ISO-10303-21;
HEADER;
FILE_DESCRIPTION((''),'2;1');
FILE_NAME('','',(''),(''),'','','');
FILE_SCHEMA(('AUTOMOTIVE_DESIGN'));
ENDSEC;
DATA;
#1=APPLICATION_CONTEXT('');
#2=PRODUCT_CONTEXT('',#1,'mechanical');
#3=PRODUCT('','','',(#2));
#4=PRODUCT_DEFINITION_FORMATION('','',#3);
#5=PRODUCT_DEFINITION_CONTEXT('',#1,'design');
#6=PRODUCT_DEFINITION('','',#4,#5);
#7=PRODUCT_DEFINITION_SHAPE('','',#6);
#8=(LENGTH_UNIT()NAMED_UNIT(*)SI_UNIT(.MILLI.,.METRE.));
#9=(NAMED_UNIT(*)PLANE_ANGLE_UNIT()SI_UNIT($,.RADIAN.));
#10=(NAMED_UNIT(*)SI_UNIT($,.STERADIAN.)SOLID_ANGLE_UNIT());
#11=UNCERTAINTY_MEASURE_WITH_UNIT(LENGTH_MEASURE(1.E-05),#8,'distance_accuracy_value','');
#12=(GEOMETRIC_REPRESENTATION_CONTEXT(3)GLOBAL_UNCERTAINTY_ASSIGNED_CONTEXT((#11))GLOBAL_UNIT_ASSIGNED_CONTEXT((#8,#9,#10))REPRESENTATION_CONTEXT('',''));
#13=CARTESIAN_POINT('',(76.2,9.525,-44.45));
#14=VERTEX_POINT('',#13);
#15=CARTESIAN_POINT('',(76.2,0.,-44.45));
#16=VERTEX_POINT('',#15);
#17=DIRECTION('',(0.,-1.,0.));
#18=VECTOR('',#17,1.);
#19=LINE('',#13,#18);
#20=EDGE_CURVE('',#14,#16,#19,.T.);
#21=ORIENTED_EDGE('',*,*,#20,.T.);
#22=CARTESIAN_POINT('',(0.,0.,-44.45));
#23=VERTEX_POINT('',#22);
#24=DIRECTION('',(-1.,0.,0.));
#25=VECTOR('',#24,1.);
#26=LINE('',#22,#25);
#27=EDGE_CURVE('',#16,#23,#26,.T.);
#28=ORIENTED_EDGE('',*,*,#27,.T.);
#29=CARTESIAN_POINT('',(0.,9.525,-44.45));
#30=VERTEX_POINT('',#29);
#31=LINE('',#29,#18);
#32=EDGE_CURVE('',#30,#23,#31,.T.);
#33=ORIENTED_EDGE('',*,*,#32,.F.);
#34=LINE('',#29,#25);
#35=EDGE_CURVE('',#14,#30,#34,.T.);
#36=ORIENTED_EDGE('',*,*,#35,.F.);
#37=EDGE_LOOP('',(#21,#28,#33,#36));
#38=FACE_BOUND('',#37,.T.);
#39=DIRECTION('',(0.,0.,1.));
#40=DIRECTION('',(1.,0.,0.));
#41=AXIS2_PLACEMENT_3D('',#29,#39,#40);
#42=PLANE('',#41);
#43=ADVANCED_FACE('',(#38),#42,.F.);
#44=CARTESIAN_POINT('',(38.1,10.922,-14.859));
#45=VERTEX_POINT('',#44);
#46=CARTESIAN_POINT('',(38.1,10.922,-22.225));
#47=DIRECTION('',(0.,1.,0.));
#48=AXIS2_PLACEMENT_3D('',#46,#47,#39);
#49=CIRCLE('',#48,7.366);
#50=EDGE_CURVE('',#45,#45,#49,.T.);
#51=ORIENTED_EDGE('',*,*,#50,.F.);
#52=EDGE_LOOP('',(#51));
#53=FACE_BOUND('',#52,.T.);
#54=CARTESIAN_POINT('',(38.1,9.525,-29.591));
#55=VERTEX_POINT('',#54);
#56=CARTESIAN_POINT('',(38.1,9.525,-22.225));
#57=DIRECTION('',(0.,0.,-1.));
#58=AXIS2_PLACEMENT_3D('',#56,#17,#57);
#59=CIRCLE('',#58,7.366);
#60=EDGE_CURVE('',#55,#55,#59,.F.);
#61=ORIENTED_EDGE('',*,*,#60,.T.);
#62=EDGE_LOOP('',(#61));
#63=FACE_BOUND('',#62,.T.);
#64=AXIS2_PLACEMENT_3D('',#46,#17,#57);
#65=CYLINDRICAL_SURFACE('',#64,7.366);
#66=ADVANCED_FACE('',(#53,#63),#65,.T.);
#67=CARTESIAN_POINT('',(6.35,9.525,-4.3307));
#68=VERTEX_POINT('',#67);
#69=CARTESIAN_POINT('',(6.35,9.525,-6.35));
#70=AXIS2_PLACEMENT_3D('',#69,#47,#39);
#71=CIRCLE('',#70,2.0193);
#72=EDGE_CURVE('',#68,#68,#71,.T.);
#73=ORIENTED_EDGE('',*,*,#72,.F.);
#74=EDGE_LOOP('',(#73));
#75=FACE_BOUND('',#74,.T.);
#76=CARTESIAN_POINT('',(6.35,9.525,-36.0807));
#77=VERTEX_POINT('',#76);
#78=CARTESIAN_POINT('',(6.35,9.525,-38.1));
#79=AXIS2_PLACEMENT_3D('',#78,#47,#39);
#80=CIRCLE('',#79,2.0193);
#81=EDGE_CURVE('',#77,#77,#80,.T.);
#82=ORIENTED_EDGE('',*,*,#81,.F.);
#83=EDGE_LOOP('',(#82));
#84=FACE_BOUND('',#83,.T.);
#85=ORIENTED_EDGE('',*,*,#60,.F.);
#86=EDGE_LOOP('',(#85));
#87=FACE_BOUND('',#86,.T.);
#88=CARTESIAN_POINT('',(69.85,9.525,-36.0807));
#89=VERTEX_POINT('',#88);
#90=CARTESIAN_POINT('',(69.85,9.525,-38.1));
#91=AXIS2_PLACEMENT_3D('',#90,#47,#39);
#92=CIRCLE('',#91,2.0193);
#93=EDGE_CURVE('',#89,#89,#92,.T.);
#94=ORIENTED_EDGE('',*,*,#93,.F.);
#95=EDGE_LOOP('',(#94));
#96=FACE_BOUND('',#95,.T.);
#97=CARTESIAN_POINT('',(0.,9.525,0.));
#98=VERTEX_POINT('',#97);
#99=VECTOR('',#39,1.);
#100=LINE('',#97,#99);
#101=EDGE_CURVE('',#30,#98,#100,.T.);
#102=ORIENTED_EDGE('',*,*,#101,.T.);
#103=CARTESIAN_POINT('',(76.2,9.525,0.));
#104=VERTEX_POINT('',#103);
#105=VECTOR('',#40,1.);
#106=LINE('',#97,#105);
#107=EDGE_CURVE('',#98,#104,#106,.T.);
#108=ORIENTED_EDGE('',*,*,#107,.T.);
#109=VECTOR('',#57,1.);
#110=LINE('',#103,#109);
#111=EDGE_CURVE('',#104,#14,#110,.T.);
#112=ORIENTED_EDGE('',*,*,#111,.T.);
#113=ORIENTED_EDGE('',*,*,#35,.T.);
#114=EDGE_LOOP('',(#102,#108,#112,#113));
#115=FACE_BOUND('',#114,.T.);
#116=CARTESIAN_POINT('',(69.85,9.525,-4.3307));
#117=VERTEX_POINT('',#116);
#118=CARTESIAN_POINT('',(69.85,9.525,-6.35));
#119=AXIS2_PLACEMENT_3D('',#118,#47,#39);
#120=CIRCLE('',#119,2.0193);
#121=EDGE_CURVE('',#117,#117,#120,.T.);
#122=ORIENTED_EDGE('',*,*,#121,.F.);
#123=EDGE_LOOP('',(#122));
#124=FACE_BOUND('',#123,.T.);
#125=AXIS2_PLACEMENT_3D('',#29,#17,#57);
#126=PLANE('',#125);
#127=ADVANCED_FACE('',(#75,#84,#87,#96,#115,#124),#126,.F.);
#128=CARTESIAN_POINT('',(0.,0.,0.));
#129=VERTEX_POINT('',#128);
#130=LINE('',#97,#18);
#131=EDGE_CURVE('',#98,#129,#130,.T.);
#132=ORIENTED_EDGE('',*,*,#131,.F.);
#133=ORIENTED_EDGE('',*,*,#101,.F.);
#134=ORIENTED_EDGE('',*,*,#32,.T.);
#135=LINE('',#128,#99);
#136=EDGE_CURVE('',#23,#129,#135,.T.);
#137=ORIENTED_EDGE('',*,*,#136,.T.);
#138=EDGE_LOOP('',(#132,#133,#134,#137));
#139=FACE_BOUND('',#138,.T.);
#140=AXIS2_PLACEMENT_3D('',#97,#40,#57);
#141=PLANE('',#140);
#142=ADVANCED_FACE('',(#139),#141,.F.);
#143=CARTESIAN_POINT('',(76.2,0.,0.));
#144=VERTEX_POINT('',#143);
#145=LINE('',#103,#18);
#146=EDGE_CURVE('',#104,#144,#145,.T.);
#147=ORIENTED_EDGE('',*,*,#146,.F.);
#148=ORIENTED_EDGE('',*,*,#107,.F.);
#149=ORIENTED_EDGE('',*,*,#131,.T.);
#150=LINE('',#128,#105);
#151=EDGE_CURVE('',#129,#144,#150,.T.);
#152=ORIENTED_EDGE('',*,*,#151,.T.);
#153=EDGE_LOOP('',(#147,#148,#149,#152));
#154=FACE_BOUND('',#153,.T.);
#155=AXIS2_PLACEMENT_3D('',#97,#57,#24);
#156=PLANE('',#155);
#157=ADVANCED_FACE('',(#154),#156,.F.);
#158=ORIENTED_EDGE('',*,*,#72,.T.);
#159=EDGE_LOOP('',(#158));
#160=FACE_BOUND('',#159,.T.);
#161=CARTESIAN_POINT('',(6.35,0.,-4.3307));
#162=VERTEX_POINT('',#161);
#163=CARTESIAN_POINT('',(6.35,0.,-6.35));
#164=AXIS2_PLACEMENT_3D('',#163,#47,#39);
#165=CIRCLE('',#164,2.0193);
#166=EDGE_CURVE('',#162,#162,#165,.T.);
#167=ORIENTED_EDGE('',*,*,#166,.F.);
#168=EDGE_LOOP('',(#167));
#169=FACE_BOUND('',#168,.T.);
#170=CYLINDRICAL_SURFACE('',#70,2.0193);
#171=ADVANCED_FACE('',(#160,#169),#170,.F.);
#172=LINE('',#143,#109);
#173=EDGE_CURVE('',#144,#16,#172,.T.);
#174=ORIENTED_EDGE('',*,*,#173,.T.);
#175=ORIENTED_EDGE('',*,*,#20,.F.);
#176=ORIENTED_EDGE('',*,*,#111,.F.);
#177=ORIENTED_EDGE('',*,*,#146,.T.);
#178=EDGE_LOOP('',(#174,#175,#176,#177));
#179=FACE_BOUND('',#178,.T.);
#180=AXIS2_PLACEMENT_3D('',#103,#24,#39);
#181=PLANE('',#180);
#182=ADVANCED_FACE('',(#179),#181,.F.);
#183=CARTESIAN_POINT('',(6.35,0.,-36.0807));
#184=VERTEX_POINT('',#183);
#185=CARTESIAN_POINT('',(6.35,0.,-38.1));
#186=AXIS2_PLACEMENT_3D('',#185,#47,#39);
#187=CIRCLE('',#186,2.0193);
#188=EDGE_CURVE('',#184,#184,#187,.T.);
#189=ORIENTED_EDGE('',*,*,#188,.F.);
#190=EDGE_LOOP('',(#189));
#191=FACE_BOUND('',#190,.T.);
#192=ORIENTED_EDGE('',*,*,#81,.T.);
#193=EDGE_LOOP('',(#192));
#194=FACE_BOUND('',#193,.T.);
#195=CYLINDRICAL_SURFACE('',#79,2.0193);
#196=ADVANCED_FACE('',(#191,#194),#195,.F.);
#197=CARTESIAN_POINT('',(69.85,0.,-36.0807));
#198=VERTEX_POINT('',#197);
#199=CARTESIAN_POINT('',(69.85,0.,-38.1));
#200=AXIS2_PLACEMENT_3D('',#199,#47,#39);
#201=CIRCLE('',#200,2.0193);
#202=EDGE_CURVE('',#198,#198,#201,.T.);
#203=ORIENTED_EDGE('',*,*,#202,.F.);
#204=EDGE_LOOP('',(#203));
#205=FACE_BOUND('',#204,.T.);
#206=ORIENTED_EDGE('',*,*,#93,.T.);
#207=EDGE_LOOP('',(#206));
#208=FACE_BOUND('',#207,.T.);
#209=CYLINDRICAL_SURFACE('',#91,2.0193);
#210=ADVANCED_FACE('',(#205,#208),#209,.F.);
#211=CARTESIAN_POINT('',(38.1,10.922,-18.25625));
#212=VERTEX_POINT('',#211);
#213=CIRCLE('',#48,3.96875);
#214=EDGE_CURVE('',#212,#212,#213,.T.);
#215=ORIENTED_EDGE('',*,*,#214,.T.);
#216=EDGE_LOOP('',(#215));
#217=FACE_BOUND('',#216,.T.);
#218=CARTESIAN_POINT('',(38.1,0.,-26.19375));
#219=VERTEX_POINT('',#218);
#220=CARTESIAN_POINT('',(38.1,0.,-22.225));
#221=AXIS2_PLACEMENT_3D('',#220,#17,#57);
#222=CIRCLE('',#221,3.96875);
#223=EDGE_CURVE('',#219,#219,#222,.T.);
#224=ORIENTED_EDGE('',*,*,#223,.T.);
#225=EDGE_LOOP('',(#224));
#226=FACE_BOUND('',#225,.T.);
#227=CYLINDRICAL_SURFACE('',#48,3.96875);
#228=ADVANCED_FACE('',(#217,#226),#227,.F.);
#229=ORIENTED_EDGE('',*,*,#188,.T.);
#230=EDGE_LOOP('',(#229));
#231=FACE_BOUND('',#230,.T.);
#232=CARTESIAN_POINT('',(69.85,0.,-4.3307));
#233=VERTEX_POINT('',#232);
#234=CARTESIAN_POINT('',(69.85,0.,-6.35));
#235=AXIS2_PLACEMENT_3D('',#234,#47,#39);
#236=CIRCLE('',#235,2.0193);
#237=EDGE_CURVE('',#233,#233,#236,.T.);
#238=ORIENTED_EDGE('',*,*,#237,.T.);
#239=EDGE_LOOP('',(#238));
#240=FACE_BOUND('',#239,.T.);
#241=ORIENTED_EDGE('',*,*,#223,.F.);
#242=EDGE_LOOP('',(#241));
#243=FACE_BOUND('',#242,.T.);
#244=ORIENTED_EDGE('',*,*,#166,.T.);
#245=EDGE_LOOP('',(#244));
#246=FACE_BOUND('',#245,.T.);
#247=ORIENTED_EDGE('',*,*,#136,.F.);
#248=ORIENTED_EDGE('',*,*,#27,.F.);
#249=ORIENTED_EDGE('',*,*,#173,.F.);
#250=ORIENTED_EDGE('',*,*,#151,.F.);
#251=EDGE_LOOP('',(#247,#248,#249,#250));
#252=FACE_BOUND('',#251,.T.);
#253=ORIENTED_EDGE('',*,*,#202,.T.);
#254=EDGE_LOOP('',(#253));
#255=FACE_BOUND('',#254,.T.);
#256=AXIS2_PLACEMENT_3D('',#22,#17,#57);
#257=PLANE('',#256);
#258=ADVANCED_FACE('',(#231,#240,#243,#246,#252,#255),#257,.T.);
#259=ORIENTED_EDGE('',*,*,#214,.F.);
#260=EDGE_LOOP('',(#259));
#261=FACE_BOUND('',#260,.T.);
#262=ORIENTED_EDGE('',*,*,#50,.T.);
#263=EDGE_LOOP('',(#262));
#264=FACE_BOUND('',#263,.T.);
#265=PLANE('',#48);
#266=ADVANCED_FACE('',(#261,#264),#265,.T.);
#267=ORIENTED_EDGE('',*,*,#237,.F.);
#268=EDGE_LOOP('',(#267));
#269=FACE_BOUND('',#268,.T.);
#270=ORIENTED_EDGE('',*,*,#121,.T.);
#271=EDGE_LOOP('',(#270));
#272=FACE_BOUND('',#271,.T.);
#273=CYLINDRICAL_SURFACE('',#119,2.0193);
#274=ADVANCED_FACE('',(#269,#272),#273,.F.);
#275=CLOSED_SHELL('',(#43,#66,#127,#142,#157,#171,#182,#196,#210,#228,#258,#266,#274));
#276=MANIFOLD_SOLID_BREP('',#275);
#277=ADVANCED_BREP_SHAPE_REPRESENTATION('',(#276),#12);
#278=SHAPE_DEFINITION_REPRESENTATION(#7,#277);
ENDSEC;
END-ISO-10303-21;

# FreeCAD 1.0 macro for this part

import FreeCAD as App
import Part
import Sketcher
from FreeCAD import Vector
Q = App.Units.Quantity


def add_polygon(sketch, points):
    """Adds a closed chain of lines whose ends are joined by coincident constraints."""
    first, n = sketch.GeometryCount, len(points)
    for a, b in zip(points, points[1:] + points[:1]):
        sketch.addGeometry(Part.LineSegment(App.Vector(*a, 0), App.Vector(*b, 0)), False)
    for i in range(n):
        sketch.addConstraint(Sketcher.Constraint("Coincident", first + i, 2, first + (i + 1) % n, 1))

doc = App.newDocument("Part")
body = doc.addObject("PartDesign::Body", "Body")

sketch1 = doc.addObject("Sketcher::SketchObject", "Sketch")
body.addObject(sketch1)
sketch1.AttachmentSupport = (doc.XZ_Plane, [""])
sketch1.MapMode = "FlatFace"
add_polygon(sketch1, [(0, -44), (0, 0), (76, 0), (76, -44)])
sketch1.addConstraint([
    Sketcher.Constraint("Vertical", 0),
    Sketcher.Constraint("Horizontal", 1),
    Sketcher.Constraint("Vertical", 2),
    Sketcher.Constraint("Horizontal", 3),
    Sketcher.Constraint("Coincident", 0, 2, -1, 1),
    Sketcher.Constraint("DistanceX", 1, 1, 1, 2, Q("3 in")),
    Sketcher.Constraint("DistanceY", 0, 1, 0, 2, Q("1.75 in")),
])
pad1 = doc.addObject("PartDesign::Pad", "Pad")
body.addObject(pad1)
pad1.Profile = sketch1
pad1.Length = Q("0.375 in")
pad1.Reversed = True

sketch2 = doc.addObject("Sketcher::SketchObject", "Sketch001")
body.addObject(sketch2)
sketch2.AttachmentSupport = (doc.XZ_Plane, [""])
sketch2.MapMode = "FlatFace"
sketch2.AttachmentOffset = App.Placement(Vector(0, 0, -0.375 * 25.4), App.Rotation())
sketch2.addGeometry([
    Part.Circle(Vector(6.3, -38.1, 0), Vector(0, 0, 1), 2),
    Part.Circle(Vector(69.8, -38.1, 0), Vector(0, 0, 1), 2),
    Part.Circle(Vector(69.8, -6.3, 0), Vector(0, 0, 1), 2),
    Part.Circle(Vector(6.3, -6.3, 0), Vector(0, 0, 1), 2),
], False)
sketch2.addConstraint([
    Sketcher.Constraint("Equal", 0, 1),
    Sketcher.Constraint("Equal", 1, 2),
    Sketcher.Constraint("Equal", 2, 3),
    Sketcher.Constraint("Horizontal", 0, 3, 1, 3),
    Sketcher.Constraint("Horizontal", 2, 3, 3, 3),
    Sketcher.Constraint("Vertical", 1, 3, 2, 3),
    Sketcher.Constraint("Vertical", 0, 3, 3, 3),
    Sketcher.Constraint("Diameter", 0, Q("0.159 in")),
    Sketcher.Constraint("DistanceY", 0, 3, -1, 1, Q("1.5 in")),
    Sketcher.Constraint("DistanceX", 0, 3, 1, 3, Q("2.5 in")),
    Sketcher.Constraint("DistanceX", -1, 1, 0, 3, Q("0.25 in")),
    Sketcher.Constraint("DistanceY", 2, 3, -1, 1, Q("0.25 in")),
])
doc.recompute()
hole = doc.addObject("PartDesign::Hole", "Hole")
body.addObject(hole)
hole.Profile = sketch2
hole.ThreadType = "None"
hole.Diameter = Q("0.159 in")
hole.DepthType = "ThroughAll"
hole.Reversed = True

sketch3 = doc.addObject("Sketcher::SketchObject", "Sketch002")
body.addObject(sketch3)
sketch3.AttachmentSupport = (doc.XZ_Plane, [""])
sketch3.MapMode = "FlatFace"
sketch3.AttachmentOffset = App.Placement(Vector(0, 0, -0.375 * 25.4), App.Rotation())
sketch3.addGeometry(Part.Circle(Vector(38, -22, 0), Vector(0, 0, 1), 7), False)
sketch3.addConstraint([
    Sketcher.Constraint("Diameter", 0, Q("0.58 in")),
    Sketcher.Constraint("DistanceX", -1, 1, 0, 3, Q("1.5 in")),
    Sketcher.Constraint("DistanceY", 0, 3, -1, 1, Q("0.875 in")),
])
pad2 = doc.addObject("PartDesign::Pad", "Pad001")
body.addObject(pad2)
pad2.Profile = sketch3
pad2.Length = Q("0.055 in")
pad2.Reversed = True

sketch4 = doc.addObject("Sketcher::SketchObject", "Sketch003")
body.addObject(sketch4)
sketch4.AttachmentSupport = (doc.XZ_Plane, [""])
sketch4.MapMode = "FlatFace"
sketch4.AttachmentOffset = App.Placement(Vector(0, 0, -0.43 * 25.4), App.Rotation())
sketch4.addGeometry(Part.Circle(Vector(38.1, -22.2, 0), Vector(0, 0, 1), 4), False)
sketch4.addConstraint([
    Sketcher.Constraint("Diameter", 0, Q("0.3125 in")),
    Sketcher.Constraint("DistanceX", -1, 1, 0, 3, Q("1.5 in")),
    Sketcher.Constraint("DistanceY", 0, 3, -1, 1, Q("0.875 in")),
])
doc.recompute()
hole2 = doc.addObject("PartDesign::Hole", "Hole001")
body.addObject(hole2)
hole2.Profile = sketch4
hole2.ThreadType = "None"
hole2.Diameter = Q("0.3125 in")
hole2.DepthType = "ThroughAll"
hole2.Reversed = True

doc.recompute()
